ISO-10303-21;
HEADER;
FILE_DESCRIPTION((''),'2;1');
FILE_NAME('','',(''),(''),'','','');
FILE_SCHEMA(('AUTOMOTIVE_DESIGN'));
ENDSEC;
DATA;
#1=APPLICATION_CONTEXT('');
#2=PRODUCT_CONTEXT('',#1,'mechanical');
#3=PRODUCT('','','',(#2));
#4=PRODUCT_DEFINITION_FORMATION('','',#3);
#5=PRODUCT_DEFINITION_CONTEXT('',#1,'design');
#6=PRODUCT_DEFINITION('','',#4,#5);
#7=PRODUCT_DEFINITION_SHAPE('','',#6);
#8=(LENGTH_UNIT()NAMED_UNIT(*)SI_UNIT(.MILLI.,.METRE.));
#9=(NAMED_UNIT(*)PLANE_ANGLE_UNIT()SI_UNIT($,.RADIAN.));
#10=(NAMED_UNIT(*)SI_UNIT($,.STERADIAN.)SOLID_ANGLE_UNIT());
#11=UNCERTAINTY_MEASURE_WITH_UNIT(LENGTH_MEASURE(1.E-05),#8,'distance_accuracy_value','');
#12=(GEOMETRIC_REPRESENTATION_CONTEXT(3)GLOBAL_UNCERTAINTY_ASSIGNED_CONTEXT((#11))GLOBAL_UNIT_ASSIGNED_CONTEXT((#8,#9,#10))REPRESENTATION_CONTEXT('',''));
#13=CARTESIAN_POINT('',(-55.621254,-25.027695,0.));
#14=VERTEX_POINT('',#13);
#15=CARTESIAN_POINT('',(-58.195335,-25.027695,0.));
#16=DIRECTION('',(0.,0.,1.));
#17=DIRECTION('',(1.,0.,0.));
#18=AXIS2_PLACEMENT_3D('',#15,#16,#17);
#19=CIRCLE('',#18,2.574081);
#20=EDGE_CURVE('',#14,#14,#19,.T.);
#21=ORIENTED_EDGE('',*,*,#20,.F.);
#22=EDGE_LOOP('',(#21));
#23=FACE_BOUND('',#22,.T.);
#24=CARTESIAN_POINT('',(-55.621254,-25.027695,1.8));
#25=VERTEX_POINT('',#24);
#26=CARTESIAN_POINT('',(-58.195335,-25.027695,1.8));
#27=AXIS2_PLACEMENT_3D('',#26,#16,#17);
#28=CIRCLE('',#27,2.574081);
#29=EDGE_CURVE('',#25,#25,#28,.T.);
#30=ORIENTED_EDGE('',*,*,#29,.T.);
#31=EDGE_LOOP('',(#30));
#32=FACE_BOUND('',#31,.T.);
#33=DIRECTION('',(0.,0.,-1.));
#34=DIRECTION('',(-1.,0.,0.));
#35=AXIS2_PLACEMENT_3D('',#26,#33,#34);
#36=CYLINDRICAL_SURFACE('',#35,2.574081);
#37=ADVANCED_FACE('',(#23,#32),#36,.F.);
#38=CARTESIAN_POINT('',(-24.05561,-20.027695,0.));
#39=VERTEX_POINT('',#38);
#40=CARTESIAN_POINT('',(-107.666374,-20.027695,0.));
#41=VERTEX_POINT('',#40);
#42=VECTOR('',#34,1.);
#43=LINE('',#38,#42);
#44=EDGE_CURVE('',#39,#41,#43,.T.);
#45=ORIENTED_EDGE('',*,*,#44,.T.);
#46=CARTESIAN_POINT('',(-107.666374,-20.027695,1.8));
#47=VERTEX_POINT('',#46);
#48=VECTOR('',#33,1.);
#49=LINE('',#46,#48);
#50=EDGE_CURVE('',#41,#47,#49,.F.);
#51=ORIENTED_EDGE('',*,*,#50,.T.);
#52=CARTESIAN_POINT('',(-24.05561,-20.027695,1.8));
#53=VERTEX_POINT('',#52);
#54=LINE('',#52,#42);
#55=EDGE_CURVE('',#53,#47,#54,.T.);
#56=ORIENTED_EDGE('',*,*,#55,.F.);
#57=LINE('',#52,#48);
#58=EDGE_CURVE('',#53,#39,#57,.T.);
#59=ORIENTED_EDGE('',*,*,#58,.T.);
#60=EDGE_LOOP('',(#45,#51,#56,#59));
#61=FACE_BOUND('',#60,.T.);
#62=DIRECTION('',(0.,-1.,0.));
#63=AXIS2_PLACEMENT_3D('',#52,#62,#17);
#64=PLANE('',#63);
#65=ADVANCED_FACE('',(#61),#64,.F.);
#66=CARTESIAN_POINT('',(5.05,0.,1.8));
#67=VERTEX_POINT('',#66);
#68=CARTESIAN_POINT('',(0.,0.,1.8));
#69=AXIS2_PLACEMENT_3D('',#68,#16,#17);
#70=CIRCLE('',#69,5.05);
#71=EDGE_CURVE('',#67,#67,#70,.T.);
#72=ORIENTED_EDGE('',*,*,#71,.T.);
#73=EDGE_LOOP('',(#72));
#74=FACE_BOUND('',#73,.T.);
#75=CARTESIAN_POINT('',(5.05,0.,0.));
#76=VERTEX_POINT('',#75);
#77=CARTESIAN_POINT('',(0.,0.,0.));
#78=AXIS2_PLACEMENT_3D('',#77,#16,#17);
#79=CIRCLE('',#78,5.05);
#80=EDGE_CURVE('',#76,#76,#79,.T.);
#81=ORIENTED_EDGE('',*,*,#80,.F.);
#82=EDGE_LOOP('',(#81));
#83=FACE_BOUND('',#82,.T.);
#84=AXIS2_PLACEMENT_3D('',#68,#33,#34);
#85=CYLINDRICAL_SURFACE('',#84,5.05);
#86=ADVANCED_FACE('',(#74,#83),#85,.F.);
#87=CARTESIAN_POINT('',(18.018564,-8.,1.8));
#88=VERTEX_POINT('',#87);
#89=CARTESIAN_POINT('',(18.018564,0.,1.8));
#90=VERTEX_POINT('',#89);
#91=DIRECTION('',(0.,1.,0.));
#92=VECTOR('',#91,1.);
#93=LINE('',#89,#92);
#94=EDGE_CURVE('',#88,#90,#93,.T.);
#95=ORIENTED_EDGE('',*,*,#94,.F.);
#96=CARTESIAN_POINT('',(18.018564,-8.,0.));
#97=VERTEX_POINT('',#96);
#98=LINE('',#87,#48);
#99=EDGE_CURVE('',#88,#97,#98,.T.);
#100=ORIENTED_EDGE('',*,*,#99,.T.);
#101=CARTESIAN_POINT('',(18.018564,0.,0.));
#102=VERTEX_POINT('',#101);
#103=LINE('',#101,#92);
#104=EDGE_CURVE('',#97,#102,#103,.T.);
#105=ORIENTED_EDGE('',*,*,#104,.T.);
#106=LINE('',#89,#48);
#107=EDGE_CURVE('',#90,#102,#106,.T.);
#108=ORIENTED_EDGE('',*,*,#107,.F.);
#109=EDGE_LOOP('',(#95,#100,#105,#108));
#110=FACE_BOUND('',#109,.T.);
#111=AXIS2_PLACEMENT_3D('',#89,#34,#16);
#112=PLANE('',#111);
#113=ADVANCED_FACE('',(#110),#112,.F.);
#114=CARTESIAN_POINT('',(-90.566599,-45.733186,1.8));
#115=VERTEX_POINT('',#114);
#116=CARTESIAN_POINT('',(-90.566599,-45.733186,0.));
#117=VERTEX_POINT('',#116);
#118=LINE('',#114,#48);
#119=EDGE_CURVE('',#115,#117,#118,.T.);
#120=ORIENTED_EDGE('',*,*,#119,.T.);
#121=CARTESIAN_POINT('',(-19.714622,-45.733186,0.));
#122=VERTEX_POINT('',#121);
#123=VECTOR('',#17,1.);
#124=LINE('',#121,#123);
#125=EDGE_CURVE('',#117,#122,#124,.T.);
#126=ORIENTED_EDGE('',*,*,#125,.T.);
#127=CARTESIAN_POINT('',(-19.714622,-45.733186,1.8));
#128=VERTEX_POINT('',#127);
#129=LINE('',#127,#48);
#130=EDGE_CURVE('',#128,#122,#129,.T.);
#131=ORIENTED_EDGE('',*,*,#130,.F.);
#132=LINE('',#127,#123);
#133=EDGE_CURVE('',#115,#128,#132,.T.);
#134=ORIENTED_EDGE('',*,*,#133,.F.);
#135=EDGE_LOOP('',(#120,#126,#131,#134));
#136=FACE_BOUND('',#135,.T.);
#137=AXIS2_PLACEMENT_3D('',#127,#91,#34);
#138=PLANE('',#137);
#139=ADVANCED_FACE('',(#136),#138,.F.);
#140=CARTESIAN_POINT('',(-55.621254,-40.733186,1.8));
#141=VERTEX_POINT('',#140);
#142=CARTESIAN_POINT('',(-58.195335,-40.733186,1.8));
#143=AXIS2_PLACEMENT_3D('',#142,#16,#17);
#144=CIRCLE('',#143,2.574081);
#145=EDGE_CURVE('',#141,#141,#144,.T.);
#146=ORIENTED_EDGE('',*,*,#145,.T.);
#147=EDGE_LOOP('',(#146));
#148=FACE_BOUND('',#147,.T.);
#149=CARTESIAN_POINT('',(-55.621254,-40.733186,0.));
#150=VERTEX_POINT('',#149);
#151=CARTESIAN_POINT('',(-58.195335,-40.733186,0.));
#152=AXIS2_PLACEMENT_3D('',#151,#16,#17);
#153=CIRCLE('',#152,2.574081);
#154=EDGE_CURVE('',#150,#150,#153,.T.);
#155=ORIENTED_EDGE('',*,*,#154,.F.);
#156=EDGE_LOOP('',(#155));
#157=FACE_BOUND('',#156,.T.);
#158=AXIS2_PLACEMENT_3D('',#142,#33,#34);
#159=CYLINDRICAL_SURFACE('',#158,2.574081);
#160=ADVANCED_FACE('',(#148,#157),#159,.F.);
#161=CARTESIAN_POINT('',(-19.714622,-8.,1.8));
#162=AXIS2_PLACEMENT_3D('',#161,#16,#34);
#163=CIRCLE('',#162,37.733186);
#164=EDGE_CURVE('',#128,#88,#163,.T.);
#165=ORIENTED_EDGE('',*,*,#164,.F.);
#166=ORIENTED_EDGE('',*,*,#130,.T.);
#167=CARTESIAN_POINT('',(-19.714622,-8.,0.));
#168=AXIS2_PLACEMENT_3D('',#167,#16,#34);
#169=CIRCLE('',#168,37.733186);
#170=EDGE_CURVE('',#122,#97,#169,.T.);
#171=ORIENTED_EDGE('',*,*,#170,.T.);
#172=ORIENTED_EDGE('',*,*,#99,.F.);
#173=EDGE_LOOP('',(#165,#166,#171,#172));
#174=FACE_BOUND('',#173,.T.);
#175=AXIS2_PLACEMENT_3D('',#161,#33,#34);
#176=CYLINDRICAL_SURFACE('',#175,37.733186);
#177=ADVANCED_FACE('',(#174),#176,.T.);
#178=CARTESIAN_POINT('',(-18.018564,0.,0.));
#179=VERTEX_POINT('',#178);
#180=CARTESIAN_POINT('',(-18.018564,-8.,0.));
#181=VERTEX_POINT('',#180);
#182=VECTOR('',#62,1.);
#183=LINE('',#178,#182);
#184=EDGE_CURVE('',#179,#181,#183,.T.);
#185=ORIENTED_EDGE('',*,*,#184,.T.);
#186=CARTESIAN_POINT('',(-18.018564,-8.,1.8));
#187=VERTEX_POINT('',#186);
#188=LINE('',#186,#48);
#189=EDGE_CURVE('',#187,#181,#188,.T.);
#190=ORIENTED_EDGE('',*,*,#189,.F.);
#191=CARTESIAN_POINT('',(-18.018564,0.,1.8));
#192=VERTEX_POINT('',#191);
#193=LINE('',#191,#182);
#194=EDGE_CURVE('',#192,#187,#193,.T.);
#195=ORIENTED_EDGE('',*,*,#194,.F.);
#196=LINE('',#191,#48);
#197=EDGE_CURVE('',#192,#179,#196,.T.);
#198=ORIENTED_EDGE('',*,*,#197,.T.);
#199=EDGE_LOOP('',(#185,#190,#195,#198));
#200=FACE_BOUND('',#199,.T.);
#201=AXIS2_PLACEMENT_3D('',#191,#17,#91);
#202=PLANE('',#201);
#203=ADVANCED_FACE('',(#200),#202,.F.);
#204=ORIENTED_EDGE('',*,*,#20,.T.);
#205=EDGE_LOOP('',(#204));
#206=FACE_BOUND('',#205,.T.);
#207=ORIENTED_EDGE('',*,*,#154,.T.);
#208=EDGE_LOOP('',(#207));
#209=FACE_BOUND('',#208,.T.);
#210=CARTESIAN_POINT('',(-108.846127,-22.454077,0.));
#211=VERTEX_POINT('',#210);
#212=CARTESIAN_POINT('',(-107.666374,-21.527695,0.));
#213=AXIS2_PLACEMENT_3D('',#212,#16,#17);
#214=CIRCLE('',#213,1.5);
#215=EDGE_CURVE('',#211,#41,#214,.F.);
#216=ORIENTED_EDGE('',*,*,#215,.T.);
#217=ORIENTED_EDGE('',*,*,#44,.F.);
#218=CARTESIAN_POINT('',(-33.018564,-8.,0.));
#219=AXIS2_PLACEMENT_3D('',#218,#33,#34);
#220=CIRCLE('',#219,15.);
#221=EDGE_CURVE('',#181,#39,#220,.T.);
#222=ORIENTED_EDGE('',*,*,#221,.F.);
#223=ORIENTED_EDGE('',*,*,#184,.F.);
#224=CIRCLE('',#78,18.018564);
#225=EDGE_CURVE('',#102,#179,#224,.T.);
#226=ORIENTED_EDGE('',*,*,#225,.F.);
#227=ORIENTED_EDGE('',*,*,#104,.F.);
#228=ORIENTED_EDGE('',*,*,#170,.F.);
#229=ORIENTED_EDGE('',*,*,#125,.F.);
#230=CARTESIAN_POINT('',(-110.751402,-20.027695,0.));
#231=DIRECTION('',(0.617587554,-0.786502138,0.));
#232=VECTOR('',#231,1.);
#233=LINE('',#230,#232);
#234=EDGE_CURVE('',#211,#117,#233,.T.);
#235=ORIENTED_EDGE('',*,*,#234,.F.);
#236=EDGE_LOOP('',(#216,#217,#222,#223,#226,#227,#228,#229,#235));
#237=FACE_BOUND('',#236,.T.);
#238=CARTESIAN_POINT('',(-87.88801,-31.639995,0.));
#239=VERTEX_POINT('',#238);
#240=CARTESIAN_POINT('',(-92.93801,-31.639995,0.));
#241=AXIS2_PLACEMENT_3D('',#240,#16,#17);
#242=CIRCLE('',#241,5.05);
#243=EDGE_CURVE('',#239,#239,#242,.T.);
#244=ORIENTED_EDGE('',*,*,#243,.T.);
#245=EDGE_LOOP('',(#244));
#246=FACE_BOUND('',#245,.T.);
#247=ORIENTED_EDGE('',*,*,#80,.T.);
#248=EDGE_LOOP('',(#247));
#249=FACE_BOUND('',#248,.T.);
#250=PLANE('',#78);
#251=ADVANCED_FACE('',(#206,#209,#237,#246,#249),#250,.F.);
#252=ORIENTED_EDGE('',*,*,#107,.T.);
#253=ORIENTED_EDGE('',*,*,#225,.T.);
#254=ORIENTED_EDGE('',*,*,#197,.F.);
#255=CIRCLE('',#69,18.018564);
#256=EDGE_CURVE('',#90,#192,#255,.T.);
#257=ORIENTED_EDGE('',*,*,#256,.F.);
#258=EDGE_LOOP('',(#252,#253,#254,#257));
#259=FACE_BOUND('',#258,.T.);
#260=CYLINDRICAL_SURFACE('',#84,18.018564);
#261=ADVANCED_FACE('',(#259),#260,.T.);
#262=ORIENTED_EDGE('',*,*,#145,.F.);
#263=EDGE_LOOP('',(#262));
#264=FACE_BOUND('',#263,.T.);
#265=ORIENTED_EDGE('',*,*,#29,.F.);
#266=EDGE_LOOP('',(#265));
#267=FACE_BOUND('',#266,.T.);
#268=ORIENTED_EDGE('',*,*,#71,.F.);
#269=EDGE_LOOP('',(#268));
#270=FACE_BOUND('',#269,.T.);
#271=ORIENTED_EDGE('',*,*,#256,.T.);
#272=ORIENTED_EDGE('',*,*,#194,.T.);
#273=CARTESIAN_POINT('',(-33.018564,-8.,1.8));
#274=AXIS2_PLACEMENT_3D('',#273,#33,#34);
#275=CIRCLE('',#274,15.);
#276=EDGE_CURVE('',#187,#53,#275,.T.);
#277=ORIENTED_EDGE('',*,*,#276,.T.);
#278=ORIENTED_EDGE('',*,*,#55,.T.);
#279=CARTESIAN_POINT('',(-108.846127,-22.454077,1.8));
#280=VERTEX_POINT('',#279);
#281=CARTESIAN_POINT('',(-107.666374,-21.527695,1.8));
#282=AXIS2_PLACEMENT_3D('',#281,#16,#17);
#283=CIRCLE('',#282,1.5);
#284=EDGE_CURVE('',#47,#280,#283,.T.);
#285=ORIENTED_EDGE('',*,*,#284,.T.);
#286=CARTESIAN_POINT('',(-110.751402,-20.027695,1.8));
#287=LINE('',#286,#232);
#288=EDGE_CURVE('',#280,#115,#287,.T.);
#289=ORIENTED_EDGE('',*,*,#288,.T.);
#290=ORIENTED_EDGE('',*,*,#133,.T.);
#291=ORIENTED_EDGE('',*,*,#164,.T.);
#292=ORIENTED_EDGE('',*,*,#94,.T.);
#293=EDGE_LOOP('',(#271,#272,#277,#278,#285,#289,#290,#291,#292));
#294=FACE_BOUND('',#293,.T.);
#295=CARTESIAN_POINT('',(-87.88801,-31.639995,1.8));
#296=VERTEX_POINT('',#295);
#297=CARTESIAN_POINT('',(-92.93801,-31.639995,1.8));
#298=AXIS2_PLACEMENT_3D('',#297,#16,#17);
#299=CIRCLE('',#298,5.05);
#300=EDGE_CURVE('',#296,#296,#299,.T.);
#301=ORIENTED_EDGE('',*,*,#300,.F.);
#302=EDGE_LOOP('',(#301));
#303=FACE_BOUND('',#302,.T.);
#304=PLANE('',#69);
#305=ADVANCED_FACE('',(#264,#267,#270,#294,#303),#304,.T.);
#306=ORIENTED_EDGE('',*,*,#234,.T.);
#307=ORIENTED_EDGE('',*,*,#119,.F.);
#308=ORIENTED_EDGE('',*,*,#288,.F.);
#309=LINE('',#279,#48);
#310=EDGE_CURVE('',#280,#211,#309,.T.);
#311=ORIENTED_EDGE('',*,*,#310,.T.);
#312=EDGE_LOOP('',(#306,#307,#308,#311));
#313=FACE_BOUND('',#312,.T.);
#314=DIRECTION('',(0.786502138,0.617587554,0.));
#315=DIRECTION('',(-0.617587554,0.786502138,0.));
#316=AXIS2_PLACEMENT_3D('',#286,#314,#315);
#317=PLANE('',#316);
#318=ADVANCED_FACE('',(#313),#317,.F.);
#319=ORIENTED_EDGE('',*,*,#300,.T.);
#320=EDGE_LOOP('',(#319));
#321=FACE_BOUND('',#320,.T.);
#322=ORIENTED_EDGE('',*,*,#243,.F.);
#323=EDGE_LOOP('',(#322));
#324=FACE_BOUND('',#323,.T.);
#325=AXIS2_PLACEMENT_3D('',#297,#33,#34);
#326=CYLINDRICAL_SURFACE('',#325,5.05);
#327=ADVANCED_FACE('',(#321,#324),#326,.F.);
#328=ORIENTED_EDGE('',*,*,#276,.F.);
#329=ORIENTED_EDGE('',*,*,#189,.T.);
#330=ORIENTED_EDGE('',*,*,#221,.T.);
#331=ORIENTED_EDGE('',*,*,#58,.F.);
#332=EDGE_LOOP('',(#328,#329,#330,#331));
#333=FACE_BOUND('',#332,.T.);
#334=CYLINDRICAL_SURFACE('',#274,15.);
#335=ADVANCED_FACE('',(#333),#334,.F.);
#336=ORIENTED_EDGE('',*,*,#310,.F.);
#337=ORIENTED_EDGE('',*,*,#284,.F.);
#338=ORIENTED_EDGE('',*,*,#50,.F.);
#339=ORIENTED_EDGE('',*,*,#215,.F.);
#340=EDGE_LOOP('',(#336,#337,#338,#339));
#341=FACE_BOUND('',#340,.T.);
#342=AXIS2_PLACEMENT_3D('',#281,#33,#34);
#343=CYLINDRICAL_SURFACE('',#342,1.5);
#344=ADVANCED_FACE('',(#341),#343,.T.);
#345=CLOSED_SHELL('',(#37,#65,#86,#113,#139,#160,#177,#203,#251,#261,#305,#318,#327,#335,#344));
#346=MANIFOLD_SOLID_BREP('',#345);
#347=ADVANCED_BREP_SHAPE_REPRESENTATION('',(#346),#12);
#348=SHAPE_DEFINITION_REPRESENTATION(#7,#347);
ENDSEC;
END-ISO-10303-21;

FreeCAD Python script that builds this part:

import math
import FreeCAD as App
import Part
import Sketcher

V = App.Vector


def edges_at(feature, points):
    """Names of the edges that pass closest to the given points."""
    edges = feature.Shape.Edges
    near = lambda p: min(range(len(edges)), key=lambda i: edges[i].distToShape(Part.Vertex(*p))[0])
    return sorted({f"Edge{near(p) + 1}" for p in points})

doc = App.newDocument("Part")
params = doc.addObject("Spreadsheet::Sheet", "Params")
for row, (alias, value) in enumerate([
    ("sketch1_radius", "15 mm"),
    ("sketch1_diameter", "10.1 mm"),
    ("sketch1_height", "8 mm"),
    ("pad1_length", "1.8 mm"),
    ("fillet_radius", "1.5 mm"),
], start=1):
    params.set(f"A{row}", alias)
    params.set(f"B{row}", "=" + value)
    params.setAlias(f"B{row}", alias)

body = doc.addObject("PartDesign::Body", "Body")

sketch1 = body.newObject("Sketcher::SketchObject", "Sketch")
sketch1.AttachmentSupport = (doc.getObject("XY_Plane"), [""])
sketch1.MapMode = "FlatFace"
sketch1.addGeometry(Part.LineSegment(V(-18, 0, 0), V(-18, -8, 0)), False)
sketch1.addGeometry(Part.ArcOfCircle(Part.Circle(V(-33, -8, 0), V(0, 0, 1), 15), math.radians(-53), math.radians(0)), False)
sketch1.addGeometry(Part.LineSegment(V(-24.1, -20, 0), V(-110.8, -20, 0)), False)
sketch1.addGeometry(Part.LineSegment(V(-110.8, -20, 0), V(-90.6, -45.7, 0)), False)
sketch1.addGeometry(Part.LineSegment(V(-90.6, -45.7, 0), V(-19.7, -45.7, 0)), False)
sketch1.addGeometry(Part.ArcOfCircle(Part.Circle(V(-19.7, -8, 0), V(0, 0, 1), 37.7), math.radians(-90), math.radians(0)), False)
sketch1.addGeometry(Part.LineSegment(V(18, -8, 0), V(18, 0, 0)), False)
sketch1.addGeometry(Part.ArcOfCircle(Part.Circle(V(0, 0, 0), V(0, 0, 1), 18), math.radians(0), math.radians(180)), False)
sketch1.addGeometry(Part.Circle(V(-92.9, -31.6, 0), V(0, 0, 1), 5), False)
sketch1.addGeometry(Part.Circle(V(-58.2, -40.7, 0), V(0, 0, 1), 2.6), False)
sketch1.addGeometry(Part.Circle(V(-58.2, -25, 0), V(0, 0, 1), 2.6), False)
sketch1.addGeometry(Part.Circle(V(0, 0, 0), V(0, 0, 1), 5), False)
sketch1.addConstraint(Sketcher.Constraint("Tangent", 0, 2, 1, 2))
sketch1.addConstraint(Sketcher.Constraint("Coincident", 1, 1, 2, 1))
sketch1.addConstraint(Sketcher.Constraint("Coincident", 2, 2, 3, 1))
sketch1.addConstraint(Sketcher.Constraint("Coincident", 3, 2, 4, 1))
sketch1.addConstraint(Sketcher.Constraint("Tangent", 4, 2, 5, 1))
sketch1.addConstraint(Sketcher.Constraint("Tangent", 5, 2, 6, 1))
sketch1.addConstraint(Sketcher.Constraint("Tangent", 6, 2, 7, 1))
sketch1.addConstraint(Sketcher.Constraint("Tangent", 7, 2, 0, 1))
sketch1.addConstraint(Sketcher.Constraint("Vertical", 0))
sketch1.addConstraint(Sketcher.Constraint("Horizontal", 2))
sketch1.addConstraint(Sketcher.Constraint("Horizontal", 4))
sketch1.addConstraint(Sketcher.Constraint("Vertical", 6))
sketch1.addConstraint(Sketcher.Constraint("Coincident", 7, 3, -1, 1))
sketch1.addConstraint(Sketcher.Constraint("Coincident", 11, 3, -1, 1))
sketch1.addConstraint(Sketcher.Constraint("Equal", 9, 10))
sketch1.addConstraint(Sketcher.Constraint("Equal", 8, 11))
sketch1.addConstraint(Sketcher.Constraint("Horizontal", 1, 3, 5, 3))
sketch1.addConstraint(Sketcher.Constraint("Vertical", 9, 3, 10, 3))
sketch1.addConstraint(Sketcher.Constraint("Radius", 1, 15.0))
sketch1.addConstraint(Sketcher.Constraint("Diameter", 8, 10.1))
sketch1.addConstraint(Sketcher.Constraint("DistanceY", 0, 2, 0, 1, 8.0))
sketch1.addConstraint(Sketcher.Constraint("DistanceY", 10, 3, 2, 2, 5.0))
sketch1.addConstraint(Sketcher.Constraint("DistanceY", 3, 2, 9, 3, 5.0))
sketch1.addConstraint(Sketcher.Constraint("Diameter", 9, 5.148161))
sketch1.addConstraint(Sketcher.Constraint("Radius", 5, 37.733186))
sketch1.addConstraint(Sketcher.Constraint("Radius", 7, 18.018564))
sketch1.addConstraint(Sketcher.Constraint("DistanceX", 3, 2, -1, 1, 90.566599))
sketch1.addConstraint(Sketcher.Constraint("DistanceY", 8, 3, 10, 3, 6.612299))
sketch1.addConstraint(Sketcher.Constraint("DistanceX", 2, 2, 2, 1, 86.695792))
sketch1.addConstraint(Sketcher.Constraint("DistanceX", 8, 3, -1, 1, 92.93801))
sketch1.addConstraint(Sketcher.Constraint("DistanceX", 1, 1, -1, 1, 24.05561))
sketch1.addConstraint(Sketcher.Constraint("DistanceX", 9, 3, 1, 3, 25.176771))
sketch1.setExpression("Constraints[18]", "Params.sketch1_radius")
sketch1.setExpression("Constraints[19]", "Params.sketch1_diameter")
sketch1.setExpression("Constraints[20]", "Params.sketch1_height")
pad1 = body.newObject("PartDesign::Pad", "Pad")
pad1.Profile = sketch1
pad1.setExpression("Length", "Params.pad1_length")
doc.recompute()

fillet = body.newObject("PartDesign::Fillet", "Fillet")
fillet.Base = (pad1, edges_at(pad1, [(-110.751, -20.028, 0.9)]))
fillet.setExpression("Radius", "Params.fillet_radius")

doc.recompute()
